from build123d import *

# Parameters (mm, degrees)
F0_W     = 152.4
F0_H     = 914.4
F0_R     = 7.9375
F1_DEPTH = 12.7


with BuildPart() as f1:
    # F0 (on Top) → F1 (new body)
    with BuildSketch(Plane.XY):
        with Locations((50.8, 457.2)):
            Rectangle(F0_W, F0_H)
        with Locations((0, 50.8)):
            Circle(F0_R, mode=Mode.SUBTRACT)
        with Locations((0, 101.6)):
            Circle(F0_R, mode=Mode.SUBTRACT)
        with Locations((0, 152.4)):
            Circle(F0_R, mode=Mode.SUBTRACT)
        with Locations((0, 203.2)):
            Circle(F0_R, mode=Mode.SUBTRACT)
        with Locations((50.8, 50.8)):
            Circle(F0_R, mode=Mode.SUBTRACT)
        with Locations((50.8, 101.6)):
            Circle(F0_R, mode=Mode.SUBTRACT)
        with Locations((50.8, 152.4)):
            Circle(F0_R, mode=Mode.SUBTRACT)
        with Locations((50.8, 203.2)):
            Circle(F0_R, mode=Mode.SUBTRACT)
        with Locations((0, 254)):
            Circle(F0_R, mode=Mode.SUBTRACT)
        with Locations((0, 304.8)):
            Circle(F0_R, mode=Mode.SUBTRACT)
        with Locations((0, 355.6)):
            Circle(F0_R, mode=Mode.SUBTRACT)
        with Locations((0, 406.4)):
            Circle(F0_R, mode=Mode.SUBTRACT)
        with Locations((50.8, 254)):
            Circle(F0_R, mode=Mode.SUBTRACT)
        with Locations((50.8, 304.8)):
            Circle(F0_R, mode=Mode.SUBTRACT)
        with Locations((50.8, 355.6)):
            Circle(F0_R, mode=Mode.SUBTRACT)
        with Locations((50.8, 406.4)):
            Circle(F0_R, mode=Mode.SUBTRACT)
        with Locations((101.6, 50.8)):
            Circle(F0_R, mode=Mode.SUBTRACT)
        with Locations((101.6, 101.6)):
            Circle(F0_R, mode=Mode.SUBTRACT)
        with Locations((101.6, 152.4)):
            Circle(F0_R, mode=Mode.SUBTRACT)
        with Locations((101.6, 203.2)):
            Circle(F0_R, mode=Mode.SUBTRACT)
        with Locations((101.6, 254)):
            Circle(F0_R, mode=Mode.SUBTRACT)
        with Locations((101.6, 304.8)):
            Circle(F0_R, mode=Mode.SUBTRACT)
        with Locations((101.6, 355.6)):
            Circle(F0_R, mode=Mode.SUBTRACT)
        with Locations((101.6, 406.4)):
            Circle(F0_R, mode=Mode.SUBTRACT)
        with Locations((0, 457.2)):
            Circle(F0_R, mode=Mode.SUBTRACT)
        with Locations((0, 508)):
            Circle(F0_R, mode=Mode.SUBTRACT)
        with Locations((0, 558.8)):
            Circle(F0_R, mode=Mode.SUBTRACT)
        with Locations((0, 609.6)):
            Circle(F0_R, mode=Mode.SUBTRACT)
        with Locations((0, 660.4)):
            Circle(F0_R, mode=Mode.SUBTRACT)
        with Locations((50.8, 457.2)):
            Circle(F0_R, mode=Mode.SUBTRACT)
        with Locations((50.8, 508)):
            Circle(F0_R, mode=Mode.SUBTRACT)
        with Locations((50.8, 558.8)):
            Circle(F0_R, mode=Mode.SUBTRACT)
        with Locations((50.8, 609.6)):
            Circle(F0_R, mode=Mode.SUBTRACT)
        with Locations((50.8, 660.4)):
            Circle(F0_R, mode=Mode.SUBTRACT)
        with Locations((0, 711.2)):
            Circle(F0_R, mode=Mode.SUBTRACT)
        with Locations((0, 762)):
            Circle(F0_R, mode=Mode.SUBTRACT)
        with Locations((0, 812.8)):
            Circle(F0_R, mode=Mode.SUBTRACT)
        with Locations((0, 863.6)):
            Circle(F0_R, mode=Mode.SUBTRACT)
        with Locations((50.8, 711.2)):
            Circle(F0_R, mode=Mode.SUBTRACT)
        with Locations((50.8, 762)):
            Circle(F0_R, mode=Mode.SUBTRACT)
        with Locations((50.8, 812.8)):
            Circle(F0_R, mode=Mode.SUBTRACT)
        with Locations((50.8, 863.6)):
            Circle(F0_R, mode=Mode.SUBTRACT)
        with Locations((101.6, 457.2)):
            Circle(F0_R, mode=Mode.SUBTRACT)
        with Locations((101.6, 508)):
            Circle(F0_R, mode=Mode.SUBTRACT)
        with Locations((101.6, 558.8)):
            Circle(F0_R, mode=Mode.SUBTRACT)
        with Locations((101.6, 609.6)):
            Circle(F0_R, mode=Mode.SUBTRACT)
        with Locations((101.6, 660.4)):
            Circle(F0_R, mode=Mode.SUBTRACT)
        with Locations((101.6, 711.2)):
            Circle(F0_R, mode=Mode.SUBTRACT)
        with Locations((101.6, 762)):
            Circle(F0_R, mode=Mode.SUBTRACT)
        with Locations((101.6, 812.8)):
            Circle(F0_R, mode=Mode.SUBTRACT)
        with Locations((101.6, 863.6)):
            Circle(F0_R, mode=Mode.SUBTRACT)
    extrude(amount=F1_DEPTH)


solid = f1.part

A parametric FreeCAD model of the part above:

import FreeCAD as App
import Part
import Sketcher
from FreeCAD import Vector
Q = App.Units.Quantity

doc = App.newDocument("Part")
params = doc.addObject("Spreadsheet::Sheet", "Params")
for row, (alias, value) in enumerate([
    ("sketch1_width", "6 in"),
    ("sketch1_height", "36 in"),
    ("sketch1_diameter", "0.625 in"),
    ("pad1_length", "0.5 in"),
], start=1):
    params.set(f"A{row}", alias)
    params.set(f"B{row}", "=" + value)
    params.setAlias(f"B{row}", alias)

body = doc.addObject("PartDesign::Body", "Body")

# Sketch on XY plane
sketch1 = body.newObject("Sketcher::SketchObject", "Sketch")
sketch1.AttachmentSupport = (doc.getObject("XY_Plane"), [""])
sketch1.MapMode = "FlatFace"
sketch1.addGeometry([
    Part.LineSegment(Vector(-25, 914, 0), Vector(-25, 0, 0)),  # 0
    Part.LineSegment(Vector(-25, 0, 0), Vector(127, 0, 0)),  # 1
    Part.LineSegment(Vector(127, 0, 0), Vector(127, 914, 0)),  # 2
    Part.LineSegment(Vector(127, 914, 0), Vector(-25, 914, 0)),  # 3
    Part.Circle(Vector(0, 51, 0), Vector(0, 0, 1), 8),  # 4
    Part.Circle(Vector(0, 102, 0), Vector(0, 0, 1), 8),  # 5
    Part.Circle(Vector(0, 152, 0), Vector(0, 0, 1), 8),  # 6
    Part.Circle(Vector(0, 203, 0), Vector(0, 0, 1), 8),  # 7
    Part.Circle(Vector(0, 254, 0), Vector(0, 0, 1), 8),  # 8
    Part.Circle(Vector(0, 305, 0), Vector(0, 0, 1), 8),  # 9
    Part.Circle(Vector(0, 356, 0), Vector(0, 0, 1), 8),  # 10
    Part.Circle(Vector(0, 406, 0), Vector(0, 0, 1), 8),  # 11
    Part.Circle(Vector(51, 51, 0), Vector(0, 0, 1), 8),  # 12
    Part.Circle(Vector(51, 102, 0), Vector(0, 0, 1), 8),  # 13
    Part.Circle(Vector(51, 152, 0), Vector(0, 0, 1), 8),  # 14
    Part.Circle(Vector(51, 203, 0), Vector(0, 0, 1), 8),  # 15
    Part.Circle(Vector(102, 51, 0), Vector(0, 0, 1), 8),  # 16
    Part.Circle(Vector(102, 102, 0), Vector(0, 0, 1), 8),  # 17
    Part.Circle(Vector(102, 152, 0), Vector(0, 0, 1), 8),  # 18
    Part.Circle(Vector(102, 203, 0), Vector(0, 0, 1), 8),  # 19
    Part.Circle(Vector(51, 254, 0), Vector(0, 0, 1), 8),  # 20
    Part.Circle(Vector(51, 305, 0), Vector(0, 0, 1), 8),  # 21
    Part.Circle(Vector(51, 356, 0), Vector(0, 0, 1), 8),  # 22
    Part.Circle(Vector(51, 406, 0), Vector(0, 0, 1), 8),  # 23
    Part.Circle(Vector(102, 254, 0), Vector(0, 0, 1), 8),  # 24
    Part.Circle(Vector(102, 305, 0), Vector(0, 0, 1), 8),  # 25
    Part.Circle(Vector(102, 356, 0), Vector(0, 0, 1), 8),  # 26
    Part.Circle(Vector(102, 406, 0), Vector(0, 0, 1), 8),  # 27
    Part.Circle(Vector(0, 457, 0), Vector(0, 0, 1), 8),  # 28
    Part.Circle(Vector(0, 508, 0), Vector(0, 0, 1), 8),  # 29
    Part.Circle(Vector(0, 559, 0), Vector(0, 0, 1), 8),  # 30
    Part.Circle(Vector(0, 610, 0), Vector(0, 0, 1), 8),  # 31
    Part.Circle(Vector(0, 660, 0), Vector(0, 0, 1), 8),  # 32
    Part.Circle(Vector(0, 711, 0), Vector(0, 0, 1), 8),  # 33
    Part.Circle(Vector(0, 762, 0), Vector(0, 0, 1), 8),  # 34
    Part.Circle(Vector(0, 813, 0), Vector(0, 0, 1), 8),  # 35
    Part.Circle(Vector(0, 864, 0), Vector(0, 0, 1), 8),  # 36
    Part.Circle(Vector(51, 457, 0), Vector(0, 0, 1), 8),  # 37
    Part.Circle(Vector(51, 508, 0), Vector(0, 0, 1), 8),  # 38
    Part.Circle(Vector(51, 559, 0), Vector(0, 0, 1), 8),  # 39
    Part.Circle(Vector(51, 610, 0), Vector(0, 0, 1), 8),  # 40
    Part.Circle(Vector(51, 660, 0), Vector(0, 0, 1), 8),  # 41
    Part.Circle(Vector(102, 457, 0), Vector(0, 0, 1), 8),  # 42
    Part.Circle(Vector(102, 508, 0), Vector(0, 0, 1), 8),  # 43
    Part.Circle(Vector(102, 559, 0), Vector(0, 0, 1), 8),  # 44
    Part.Circle(Vector(102, 610, 0), Vector(0, 0, 1), 8),  # 45
    Part.Circle(Vector(102, 660, 0), Vector(0, 0, 1), 8),  # 46
    Part.Circle(Vector(51, 711, 0), Vector(0, 0, 1), 8),  # 47
    Part.Circle(Vector(51, 762, 0), Vector(0, 0, 1), 8),  # 48
    Part.Circle(Vector(51, 813, 0), Vector(0, 0, 1), 8),  # 49
    Part.Circle(Vector(51, 864, 0), Vector(0, 0, 1), 8),  # 50
    Part.Circle(Vector(102, 711, 0), Vector(0, 0, 1), 8),  # 51
    Part.Circle(Vector(102, 762, 0), Vector(0, 0, 1), 8),  # 52
    Part.Circle(Vector(102, 813, 0), Vector(0, 0, 1), 8),  # 53
    Part.Circle(Vector(102, 864, 0), Vector(0, 0, 1), 8),  # 54
], False)
sketch1.addConstraint([
    Sketcher.Constraint("Coincident", 0, 2, 1, 1),
    Sketcher.Constraint("Coincident", 1, 2, 2, 1),
    Sketcher.Constraint("Coincident", 2, 2, 3, 1),
    Sketcher.Constraint("Coincident", 3, 2, 0, 1),
    Sketcher.Constraint("Vertical", 0),
    Sketcher.Constraint("Horizontal", 1),
    Sketcher.Constraint("Vertical", 2),
    Sketcher.Constraint("Horizontal", 3),
    Sketcher.Constraint("Equal", 4, 5),
    Sketcher.Constraint("Equal", 5, 6),
    Sketcher.Constraint("Equal", 6, 7),
    Sketcher.Constraint("Equal", 7, 8),
    Sketcher.Constraint("Equal", 8, 9),
    Sketcher.Constraint("Equal", 9, 10),
    Sketcher.Constraint("Equal", 10, 11),
    Sketcher.Constraint("Equal", 11, 12),
    Sketcher.Constraint("Equal", 12, 13),
    Sketcher.Constraint("Equal", 13, 14),
    Sketcher.Constraint("Equal", 14, 15),
    Sketcher.Constraint("Equal", 15, 16),
    Sketcher.Constraint("Equal", 16, 17),
    Sketcher.Constraint("Equal", 17, 18),
    Sketcher.Constraint("Equal", 18, 19),
    Sketcher.Constraint("Equal", 19, 20),
    Sketcher.Constraint("Equal", 20, 21),
    Sketcher.Constraint("Equal", 21, 22),
    Sketcher.Constraint("Equal", 22, 23),
    Sketcher.Constraint("Equal", 23, 24),
    Sketcher.Constraint("Equal", 24, 25),
    Sketcher.Constraint("Equal", 25, 26),
    Sketcher.Constraint("Equal", 26, 27),
    Sketcher.Constraint("Equal", 27, 28),
    Sketcher.Constraint("Equal", 28, 29),
    Sketcher.Constraint("Equal", 29, 30),
    Sketcher.Constraint("Equal", 30, 31),
    Sketcher.Constraint("Equal", 31, 32),
    Sketcher.Constraint("Equal", 32, 33),
    Sketcher.Constraint("Equal", 33, 34),
    Sketcher.Constraint("Equal", 34, 35),
    Sketcher.Constraint("Equal", 35, 36),
    Sketcher.Constraint("Equal", 36, 37),
    Sketcher.Constraint("Equal", 37, 38),
    Sketcher.Constraint("Equal", 38, 39),
    Sketcher.Constraint("Equal", 39, 40),
    Sketcher.Constraint("Equal", 40, 41),
    Sketcher.Constraint("Equal", 41, 42),
    Sketcher.Constraint("Equal", 42, 43),
    Sketcher.Constraint("Equal", 43, 44),
    Sketcher.Constraint("Equal", 44, 45),
    Sketcher.Constraint("Equal", 45, 46),
    Sketcher.Constraint("Equal", 46, 47),
    Sketcher.Constraint("Equal", 47, 48),
    Sketcher.Constraint("Equal", 48, 49),
    Sketcher.Constraint("Equal", 49, 50),
    Sketcher.Constraint("Equal", 50, 51),
    Sketcher.Constraint("Equal", 51, 52),
    Sketcher.Constraint("Equal", 52, 53),
    Sketcher.Constraint("Equal", 53, 54),
    Sketcher.Constraint("PointOnObject", 4, 3, -2),
    Sketcher.Constraint("PointOnObject", 5, 3, -2),
    Sketcher.Constraint("PointOnObject", 6, 3, -2),
    Sketcher.Constraint("PointOnObject", 7, 3, -2),
    Sketcher.Constraint("PointOnObject", 8, 3, -2),
    Sketcher.Constraint("PointOnObject", 9, 3, -2),
    Sketcher.Constraint("PointOnObject", 10, 3, -2),
    Sketcher.Constraint("PointOnObject", 11, 3, -2),
    Sketcher.Constraint("PointOnObject", 28, 3, -2),
    Sketcher.Constraint("PointOnObject", 29, 3, -2),
    Sketcher.Constraint("PointOnObject", 30, 3, -2),
    Sketcher.Constraint("PointOnObject", 31, 3, -2),
    Sketcher.Constraint("PointOnObject", 32, 3, -2),
    Sketcher.Constraint("PointOnObject", 33, 3, -2),
    Sketcher.Constraint("PointOnObject", 34, 3, -2),
    Sketcher.Constraint("PointOnObject", 35, 3, -2),
    Sketcher.Constraint("PointOnObject", 36, 3, -2),
    Sketcher.Constraint("PointOnObject", 0, 2, -1),
    Sketcher.Constraint("Horizontal", 4, 3, 12, 3),
    Sketcher.Constraint("Horizontal", 5, 3, 13, 3),
    Sketcher.Constraint("Horizontal", 6, 3, 14, 3),
    Sketcher.Constraint("Horizontal", 7, 3, 15, 3),
    Sketcher.Constraint("Horizontal", 12, 3, 16, 3),
    Sketcher.Constraint("Horizontal", 13, 3, 17, 3),
    Sketcher.Constraint("Horizontal", 14, 3, 18, 3),
    Sketcher.Constraint("Horizontal", 15, 3, 19, 3),
    Sketcher.Constraint("Horizontal", 8, 3, 20, 3),
    Sketcher.Constraint("Horizontal", 9, 3, 21, 3),
    Sketcher.Constraint("Horizontal", 10, 3, 22, 3),
    Sketcher.Constraint("Horizontal", 11, 3, 23, 3),
    Sketcher.Constraint("Horizontal", 20, 3, 24, 3),
    Sketcher.Constraint("Horizontal", 21, 3, 25, 3),
    Sketcher.Constraint("Horizontal", 22, 3, 26, 3),
    Sketcher.Constraint("Horizontal", 23, 3, 27, 3),
    Sketcher.Constraint("Horizontal", 28, 3, 37, 3),
    Sketcher.Constraint("Horizontal", 29, 3, 38, 3),
    Sketcher.Constraint("Horizontal", 30, 3, 39, 3),
    Sketcher.Constraint("Horizontal", 31, 3, 40, 3),
    Sketcher.Constraint("Horizontal", 32, 3, 41, 3),
    Sketcher.Constraint("Horizontal", 37, 3, 42, 3),
    Sketcher.Constraint("Horizontal", 38, 3, 43, 3),
    Sketcher.Constraint("Horizontal", 39, 3, 44, 3),
    Sketcher.Constraint("Horizontal", 40, 3, 45, 3),
    Sketcher.Constraint("Horizontal", 41, 3, 46, 3),
    Sketcher.Constraint("Horizontal", 33, 3, 47, 3),
    Sketcher.Constraint("Horizontal", 34, 3, 48, 3),
    Sketcher.Constraint("Horizontal", 35, 3, 49, 3),
    Sketcher.Constraint("Horizontal", 36, 3, 50, 3),
    Sketcher.Constraint("Horizontal", 47, 3, 51, 3),
    Sketcher.Constraint("Horizontal", 48, 3, 52, 3),
    Sketcher.Constraint("Horizontal", 49, 3, 53, 3),
    Sketcher.Constraint("Horizontal", 50, 3, 54, 3),
    Sketcher.Constraint("Vertical", 12, 3, 13, 3),
    Sketcher.Constraint("Vertical", 13, 3, 14, 3),
    Sketcher.Constraint("Vertical", 14, 3, 15, 3),
    Sketcher.Constraint("Vertical", 16, 3, 17, 3),
    Sketcher.Constraint("Vertical", 17, 3, 18, 3),
    Sketcher.Constraint("Vertical", 18, 3, 19, 3),
    Sketcher.Constraint("Vertical", 15, 3, 20, 3),
    Sketcher.Constraint("Vertical", 20, 3, 21, 3),
    Sketcher.Constraint("Vertical", 21, 3, 22, 3),
    Sketcher.Constraint("Vertical", 22, 3, 23, 3),
    Sketcher.Constraint("Vertical", 19, 3, 24, 3),
    Sketcher.Constraint("Vertical", 24, 3, 25, 3),
    Sketcher.Constraint("Vertical", 25, 3, 26, 3),
    Sketcher.Constraint("Vertical", 26, 3, 27, 3),
    Sketcher.Constraint("Vertical", 23, 3, 37, 3),
    Sketcher.Constraint("Vertical", 37, 3, 38, 3),
    Sketcher.Constraint("Vertical", 38, 3, 39, 3),
    Sketcher.Constraint("Vertical", 39, 3, 40, 3),
    Sketcher.Constraint("Vertical", 40, 3, 41, 3),
    Sketcher.Constraint("Vertical", 27, 3, 42, 3),
    Sketcher.Constraint("Vertical", 42, 3, 43, 3),
    Sketcher.Constraint("Vertical", 43, 3, 44, 3),
    Sketcher.Constraint("Vertical", 44, 3, 45, 3),
    Sketcher.Constraint("Vertical", 45, 3, 46, 3),
    Sketcher.Constraint("Vertical", 41, 3, 47, 3),
    Sketcher.Constraint("Vertical", 47, 3, 48, 3),
    Sketcher.Constraint("Vertical", 48, 3, 49, 3),
    Sketcher.Constraint("Vertical", 49, 3, 50, 3),
    Sketcher.Constraint("Vertical", 46, 3, 51, 3),
    Sketcher.Constraint("Vertical", 51, 3, 52, 3),
    Sketcher.Constraint("Vertical", 52, 3, 53, 3),
    Sketcher.Constraint("Vertical", 53, 3, 54, 3),
    Sketcher.Constraint("DistanceX", 1, 1, 1, 2, Q("6 in")),
    Sketcher.Constraint("DistanceY", 0, 2, 0, 1, Q("36 in")),
    Sketcher.Constraint("Diameter", 4, Q("0.625 in")),
    Sketcher.Constraint("DistanceY", -1, 1, 4, 3, Q("2 in")),
    Sketcher.Constraint("DistanceY", -1, 1, 5, 3, Q("4 in")),
    Sketcher.Constraint("DistanceY", -1, 1, 6, 3, Q("6 in")),
    Sketcher.Constraint("DistanceY", -1, 1, 7, 3, Q("8 in")),
    Sketcher.Constraint("DistanceY", -1, 1, 8, 3, Q("10 in")),
    Sketcher.Constraint("DistanceY", -1, 1, 9, 3, Q("12 in")),
    Sketcher.Constraint("DistanceY", -1, 1, 10, 3, Q("14 in")),
    Sketcher.Constraint("DistanceY", -1, 1, 11, 3, Q("16 in")),
    Sketcher.Constraint("DistanceX", -1, 1, 12, 3, Q("2 in")),
    Sketcher.Constraint("DistanceX", -1, 1, 16, 3, Q("4 in")),
    Sketcher.Constraint("DistanceY", -1, 1, 28, 3, Q("18 in")),
    Sketcher.Constraint("DistanceY", -1, 1, 29, 3, Q("20 in")),
    Sketcher.Constraint("DistanceY", -1, 1, 30, 3, Q("22 in")),
    Sketcher.Constraint("DistanceY", -1, 1, 31, 3, Q("24 in")),
    Sketcher.Constraint("DistanceY", -1, 1, 32, 3, Q("26 in")),
    Sketcher.Constraint("DistanceY", -1, 1, 33, 3, Q("28 in")),
    Sketcher.Constraint("DistanceY", -1, 1, 34, 3, Q("30 in")),
    Sketcher.Constraint("DistanceY", -1, 1, 35, 3, Q("32 in")),
    Sketcher.Constraint("DistanceY", -1, 1, 36, 3, Q("34 in")),
    Sketcher.Constraint("DistanceX", 0, 2, -1, 1, Q("1 in")),
])
sketch1.setExpression("Constraints[142]", "Params.sketch1_width")
sketch1.setExpression("Constraints[143]", "Params.sketch1_height")
sketch1.setExpression("Constraints[144]", "Params.sketch1_diameter")
pad1 = body.newObject("PartDesign::Pad", "Pad")
pad1.Profile = sketch1
pad1.setExpression("Length", "Params.pad1_length")

doc.recompute()
